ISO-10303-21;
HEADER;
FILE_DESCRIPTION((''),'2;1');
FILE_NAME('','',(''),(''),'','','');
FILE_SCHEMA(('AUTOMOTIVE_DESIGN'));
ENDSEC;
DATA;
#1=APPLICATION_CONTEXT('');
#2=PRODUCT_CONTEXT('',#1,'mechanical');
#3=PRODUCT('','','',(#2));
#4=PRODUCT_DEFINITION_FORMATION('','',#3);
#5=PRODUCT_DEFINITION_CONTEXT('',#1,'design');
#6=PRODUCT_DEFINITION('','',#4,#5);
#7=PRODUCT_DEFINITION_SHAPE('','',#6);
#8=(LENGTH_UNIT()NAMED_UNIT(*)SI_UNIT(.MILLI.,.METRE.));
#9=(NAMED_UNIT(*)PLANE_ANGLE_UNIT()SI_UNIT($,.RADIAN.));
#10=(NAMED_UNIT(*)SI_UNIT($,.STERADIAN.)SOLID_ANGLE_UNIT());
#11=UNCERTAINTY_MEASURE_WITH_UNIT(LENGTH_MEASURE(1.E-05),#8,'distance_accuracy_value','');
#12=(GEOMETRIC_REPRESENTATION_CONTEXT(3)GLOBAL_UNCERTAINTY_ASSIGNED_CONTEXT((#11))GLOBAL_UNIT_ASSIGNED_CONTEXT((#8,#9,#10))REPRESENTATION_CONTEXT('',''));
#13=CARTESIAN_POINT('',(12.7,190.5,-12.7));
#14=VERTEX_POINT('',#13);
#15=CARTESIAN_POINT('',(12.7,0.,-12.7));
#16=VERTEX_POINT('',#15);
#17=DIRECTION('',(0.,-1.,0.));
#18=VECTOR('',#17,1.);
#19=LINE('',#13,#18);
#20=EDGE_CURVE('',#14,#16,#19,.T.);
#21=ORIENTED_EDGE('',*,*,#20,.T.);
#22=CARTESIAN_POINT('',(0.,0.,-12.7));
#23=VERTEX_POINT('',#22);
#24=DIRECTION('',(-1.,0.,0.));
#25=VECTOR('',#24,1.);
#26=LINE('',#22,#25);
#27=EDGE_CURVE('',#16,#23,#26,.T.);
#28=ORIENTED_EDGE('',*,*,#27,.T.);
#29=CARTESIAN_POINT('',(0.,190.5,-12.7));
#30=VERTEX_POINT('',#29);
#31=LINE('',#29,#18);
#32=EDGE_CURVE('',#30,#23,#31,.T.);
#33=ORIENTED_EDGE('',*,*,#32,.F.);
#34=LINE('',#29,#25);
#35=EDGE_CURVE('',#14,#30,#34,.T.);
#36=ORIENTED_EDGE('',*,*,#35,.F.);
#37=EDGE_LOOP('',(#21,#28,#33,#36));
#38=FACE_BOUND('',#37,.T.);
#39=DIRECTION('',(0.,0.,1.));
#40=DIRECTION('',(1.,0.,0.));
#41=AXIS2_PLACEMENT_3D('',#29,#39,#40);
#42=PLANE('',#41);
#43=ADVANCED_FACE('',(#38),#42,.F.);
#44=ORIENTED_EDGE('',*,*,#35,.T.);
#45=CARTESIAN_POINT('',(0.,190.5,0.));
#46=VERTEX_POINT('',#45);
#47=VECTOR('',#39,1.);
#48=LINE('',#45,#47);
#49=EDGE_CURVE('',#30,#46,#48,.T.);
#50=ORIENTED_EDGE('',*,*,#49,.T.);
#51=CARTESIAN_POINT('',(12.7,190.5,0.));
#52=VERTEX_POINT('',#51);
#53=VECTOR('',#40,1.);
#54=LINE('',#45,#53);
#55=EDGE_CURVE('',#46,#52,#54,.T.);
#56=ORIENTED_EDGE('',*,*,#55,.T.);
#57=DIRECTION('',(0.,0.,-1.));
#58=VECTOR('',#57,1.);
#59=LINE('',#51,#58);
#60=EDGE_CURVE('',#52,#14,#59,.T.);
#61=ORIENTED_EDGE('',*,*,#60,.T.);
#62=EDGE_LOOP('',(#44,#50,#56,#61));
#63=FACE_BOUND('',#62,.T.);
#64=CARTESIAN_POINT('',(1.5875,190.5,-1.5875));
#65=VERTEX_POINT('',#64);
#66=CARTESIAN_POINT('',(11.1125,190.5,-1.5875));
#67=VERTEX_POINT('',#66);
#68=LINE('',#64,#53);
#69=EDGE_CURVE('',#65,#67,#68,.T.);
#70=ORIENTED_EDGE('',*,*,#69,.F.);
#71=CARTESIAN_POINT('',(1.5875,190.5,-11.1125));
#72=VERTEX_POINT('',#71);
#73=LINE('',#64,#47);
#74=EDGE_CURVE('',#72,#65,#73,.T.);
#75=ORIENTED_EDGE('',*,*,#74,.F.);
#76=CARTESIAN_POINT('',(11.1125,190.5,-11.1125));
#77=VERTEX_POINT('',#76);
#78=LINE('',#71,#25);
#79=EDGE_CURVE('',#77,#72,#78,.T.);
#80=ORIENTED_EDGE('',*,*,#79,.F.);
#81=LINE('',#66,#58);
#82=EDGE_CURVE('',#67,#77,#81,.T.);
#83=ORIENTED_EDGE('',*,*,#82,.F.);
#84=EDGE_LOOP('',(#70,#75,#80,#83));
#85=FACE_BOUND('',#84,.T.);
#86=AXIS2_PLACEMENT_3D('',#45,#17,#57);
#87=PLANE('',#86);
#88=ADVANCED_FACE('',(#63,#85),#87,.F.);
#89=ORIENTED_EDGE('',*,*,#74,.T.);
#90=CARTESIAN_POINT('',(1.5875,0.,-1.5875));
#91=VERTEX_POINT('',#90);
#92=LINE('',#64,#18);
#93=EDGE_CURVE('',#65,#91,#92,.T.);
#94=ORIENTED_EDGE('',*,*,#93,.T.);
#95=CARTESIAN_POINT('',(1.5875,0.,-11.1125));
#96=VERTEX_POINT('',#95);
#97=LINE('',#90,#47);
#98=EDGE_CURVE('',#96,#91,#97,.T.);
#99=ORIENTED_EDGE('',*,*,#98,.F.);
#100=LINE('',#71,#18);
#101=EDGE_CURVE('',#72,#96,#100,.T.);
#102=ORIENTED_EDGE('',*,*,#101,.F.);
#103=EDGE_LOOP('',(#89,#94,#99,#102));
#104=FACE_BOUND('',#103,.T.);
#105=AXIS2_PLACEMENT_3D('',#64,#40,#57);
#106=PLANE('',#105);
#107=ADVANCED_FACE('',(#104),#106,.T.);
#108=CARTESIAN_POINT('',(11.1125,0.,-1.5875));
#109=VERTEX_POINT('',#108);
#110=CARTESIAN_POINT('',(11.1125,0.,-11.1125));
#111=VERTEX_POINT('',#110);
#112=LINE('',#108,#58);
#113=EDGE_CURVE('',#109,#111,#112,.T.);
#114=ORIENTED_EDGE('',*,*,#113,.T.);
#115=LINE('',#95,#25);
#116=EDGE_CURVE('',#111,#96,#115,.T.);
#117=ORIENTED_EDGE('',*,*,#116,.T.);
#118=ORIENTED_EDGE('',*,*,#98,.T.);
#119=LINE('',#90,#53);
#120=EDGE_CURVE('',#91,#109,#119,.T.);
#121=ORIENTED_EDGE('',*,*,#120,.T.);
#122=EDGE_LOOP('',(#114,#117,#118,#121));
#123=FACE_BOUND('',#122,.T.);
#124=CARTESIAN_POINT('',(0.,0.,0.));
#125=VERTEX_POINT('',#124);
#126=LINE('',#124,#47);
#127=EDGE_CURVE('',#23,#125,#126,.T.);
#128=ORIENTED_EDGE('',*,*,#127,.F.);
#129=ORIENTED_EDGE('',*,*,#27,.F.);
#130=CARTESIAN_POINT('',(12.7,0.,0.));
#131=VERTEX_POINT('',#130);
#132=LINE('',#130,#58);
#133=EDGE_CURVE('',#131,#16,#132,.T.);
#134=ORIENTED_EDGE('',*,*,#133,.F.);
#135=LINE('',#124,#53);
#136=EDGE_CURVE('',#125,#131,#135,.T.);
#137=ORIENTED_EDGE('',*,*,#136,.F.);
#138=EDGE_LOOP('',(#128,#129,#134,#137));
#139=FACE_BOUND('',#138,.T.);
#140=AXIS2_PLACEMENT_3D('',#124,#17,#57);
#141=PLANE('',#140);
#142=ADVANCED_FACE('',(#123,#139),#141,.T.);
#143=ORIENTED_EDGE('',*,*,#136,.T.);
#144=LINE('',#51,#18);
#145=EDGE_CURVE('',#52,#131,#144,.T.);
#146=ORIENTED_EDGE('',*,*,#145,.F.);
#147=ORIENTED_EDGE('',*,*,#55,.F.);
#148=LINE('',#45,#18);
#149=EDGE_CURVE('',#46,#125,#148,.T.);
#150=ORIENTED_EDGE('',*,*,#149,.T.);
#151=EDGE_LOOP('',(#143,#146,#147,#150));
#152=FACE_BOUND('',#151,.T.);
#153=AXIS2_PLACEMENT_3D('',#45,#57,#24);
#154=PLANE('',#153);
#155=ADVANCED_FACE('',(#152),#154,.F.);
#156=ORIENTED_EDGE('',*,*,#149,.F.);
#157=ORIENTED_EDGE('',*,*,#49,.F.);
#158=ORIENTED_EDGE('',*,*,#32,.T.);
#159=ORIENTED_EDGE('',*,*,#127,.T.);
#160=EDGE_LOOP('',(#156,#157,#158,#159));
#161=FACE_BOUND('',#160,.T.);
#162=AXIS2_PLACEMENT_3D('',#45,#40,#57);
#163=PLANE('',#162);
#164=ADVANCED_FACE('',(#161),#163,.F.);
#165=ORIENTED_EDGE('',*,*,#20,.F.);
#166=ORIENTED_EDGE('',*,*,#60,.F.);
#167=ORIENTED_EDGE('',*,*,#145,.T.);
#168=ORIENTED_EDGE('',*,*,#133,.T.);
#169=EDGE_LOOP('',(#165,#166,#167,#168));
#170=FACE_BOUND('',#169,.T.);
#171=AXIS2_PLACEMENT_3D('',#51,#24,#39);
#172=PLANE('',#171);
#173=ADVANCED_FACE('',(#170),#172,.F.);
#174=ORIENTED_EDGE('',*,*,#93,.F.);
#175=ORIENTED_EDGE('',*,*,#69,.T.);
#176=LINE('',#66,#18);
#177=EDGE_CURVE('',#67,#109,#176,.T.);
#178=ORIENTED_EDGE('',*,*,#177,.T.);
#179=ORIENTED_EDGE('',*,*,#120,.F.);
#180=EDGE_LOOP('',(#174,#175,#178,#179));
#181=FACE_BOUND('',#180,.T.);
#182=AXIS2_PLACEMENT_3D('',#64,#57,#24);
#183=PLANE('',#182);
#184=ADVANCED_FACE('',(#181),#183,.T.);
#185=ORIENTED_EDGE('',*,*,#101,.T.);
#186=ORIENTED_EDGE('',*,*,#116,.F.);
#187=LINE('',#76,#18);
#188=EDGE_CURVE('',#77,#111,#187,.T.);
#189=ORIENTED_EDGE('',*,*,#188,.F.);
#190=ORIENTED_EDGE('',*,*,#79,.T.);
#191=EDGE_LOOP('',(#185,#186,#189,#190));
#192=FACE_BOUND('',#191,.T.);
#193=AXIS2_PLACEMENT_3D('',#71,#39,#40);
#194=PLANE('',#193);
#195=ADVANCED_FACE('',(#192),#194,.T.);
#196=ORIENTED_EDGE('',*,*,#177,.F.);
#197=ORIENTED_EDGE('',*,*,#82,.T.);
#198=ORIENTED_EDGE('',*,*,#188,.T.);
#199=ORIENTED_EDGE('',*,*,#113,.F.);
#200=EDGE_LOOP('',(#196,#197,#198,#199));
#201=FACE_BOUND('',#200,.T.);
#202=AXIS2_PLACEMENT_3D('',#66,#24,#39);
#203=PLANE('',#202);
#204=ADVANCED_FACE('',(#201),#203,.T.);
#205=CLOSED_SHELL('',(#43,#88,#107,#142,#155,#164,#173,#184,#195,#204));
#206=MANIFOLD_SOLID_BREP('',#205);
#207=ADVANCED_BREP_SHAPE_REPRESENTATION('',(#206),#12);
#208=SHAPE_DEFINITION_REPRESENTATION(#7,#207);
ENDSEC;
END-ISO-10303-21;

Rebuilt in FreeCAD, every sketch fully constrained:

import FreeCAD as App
import Part
import Sketcher
from FreeCAD import Vector
Q = App.Units.Quantity


def add_polygon(sketch, points):
    """Adds a closed chain of lines whose ends are joined by coincident constraints."""
    first, n = sketch.GeometryCount, len(points)
    for a, b in zip(points, points[1:] + points[:1]):
        sketch.addGeometry(Part.LineSegment(App.Vector(*a, 0), App.Vector(*b, 0)), False)
    for i in range(n):
        sketch.addConstraint(Sketcher.Constraint("Coincident", first + i, 2, first + (i + 1) % n, 1))

doc = App.newDocument("Part")
params = doc.addObject("Spreadsheet::Sheet", "Params")
for row, (alias, value) in enumerate([
    ("sketch1_width", "0.5 in"),
    ("sketch1_width2", "0.375 in"),
    ("pad1_length", "7.5 in"),
], start=1):
    params.set(f"A{row}", alias)
    params.set(f"B{row}", "=" + value)
    params.setAlias(f"B{row}", alias)

body = doc.addObject("PartDesign::Body", "Body")

sketch1 = body.newObject("Sketcher::SketchObject", "Sketch")
sketch1.AttachmentSupport = (doc.getObject("XZ_Plane"), [""])
sketch1.MapMode = "FlatFace"
add_polygon(sketch1, [(0, -13), (0, 0), (13, 0), (13, -13)])
add_polygon(sketch1, [(11, -2), (2, -2), (2, -11), (11, -11)])
sketch1.addConstraint([
    Sketcher.Constraint("Vertical", 0),
    Sketcher.Constraint("Horizontal", 1),
    Sketcher.Constraint("Vertical", 2),
    Sketcher.Constraint("Horizontal", 3),
    Sketcher.Constraint("Horizontal", 4),
    Sketcher.Constraint("Vertical", 5),
    Sketcher.Constraint("Horizontal", 6),
    Sketcher.Constraint("Vertical", 7),
    Sketcher.Constraint("Coincident", 0, 2, -1, 1),
    Sketcher.Constraint("Equal", 3, 0),
    Sketcher.Constraint("Equal", 6, 5),
    Sketcher.Constraint("DistanceX", 1, 1, 1, 2, Q("0.5 in")),
    Sketcher.Constraint("DistanceX", 4, 2, 4, 1, Q("0.375 in")),
    Sketcher.Constraint("DistanceX", -1, 1, 4, 2, Q("0.0625 in")),
    Sketcher.Constraint("DistanceY", 4, 2, -1, 1, Q("0.0625 in")),
])
sketch1.setExpression("Constraints[19]", "Params.sketch1_width")
sketch1.setExpression("Constraints[20]", "Params.sketch1_width2")
pad1 = body.newObject("PartDesign::Pad", "Pad")
pad1.Profile = sketch1
pad1.setExpression("Length", "Params.pad1_length")
pad1.Reversed = True

doc.recompute()
